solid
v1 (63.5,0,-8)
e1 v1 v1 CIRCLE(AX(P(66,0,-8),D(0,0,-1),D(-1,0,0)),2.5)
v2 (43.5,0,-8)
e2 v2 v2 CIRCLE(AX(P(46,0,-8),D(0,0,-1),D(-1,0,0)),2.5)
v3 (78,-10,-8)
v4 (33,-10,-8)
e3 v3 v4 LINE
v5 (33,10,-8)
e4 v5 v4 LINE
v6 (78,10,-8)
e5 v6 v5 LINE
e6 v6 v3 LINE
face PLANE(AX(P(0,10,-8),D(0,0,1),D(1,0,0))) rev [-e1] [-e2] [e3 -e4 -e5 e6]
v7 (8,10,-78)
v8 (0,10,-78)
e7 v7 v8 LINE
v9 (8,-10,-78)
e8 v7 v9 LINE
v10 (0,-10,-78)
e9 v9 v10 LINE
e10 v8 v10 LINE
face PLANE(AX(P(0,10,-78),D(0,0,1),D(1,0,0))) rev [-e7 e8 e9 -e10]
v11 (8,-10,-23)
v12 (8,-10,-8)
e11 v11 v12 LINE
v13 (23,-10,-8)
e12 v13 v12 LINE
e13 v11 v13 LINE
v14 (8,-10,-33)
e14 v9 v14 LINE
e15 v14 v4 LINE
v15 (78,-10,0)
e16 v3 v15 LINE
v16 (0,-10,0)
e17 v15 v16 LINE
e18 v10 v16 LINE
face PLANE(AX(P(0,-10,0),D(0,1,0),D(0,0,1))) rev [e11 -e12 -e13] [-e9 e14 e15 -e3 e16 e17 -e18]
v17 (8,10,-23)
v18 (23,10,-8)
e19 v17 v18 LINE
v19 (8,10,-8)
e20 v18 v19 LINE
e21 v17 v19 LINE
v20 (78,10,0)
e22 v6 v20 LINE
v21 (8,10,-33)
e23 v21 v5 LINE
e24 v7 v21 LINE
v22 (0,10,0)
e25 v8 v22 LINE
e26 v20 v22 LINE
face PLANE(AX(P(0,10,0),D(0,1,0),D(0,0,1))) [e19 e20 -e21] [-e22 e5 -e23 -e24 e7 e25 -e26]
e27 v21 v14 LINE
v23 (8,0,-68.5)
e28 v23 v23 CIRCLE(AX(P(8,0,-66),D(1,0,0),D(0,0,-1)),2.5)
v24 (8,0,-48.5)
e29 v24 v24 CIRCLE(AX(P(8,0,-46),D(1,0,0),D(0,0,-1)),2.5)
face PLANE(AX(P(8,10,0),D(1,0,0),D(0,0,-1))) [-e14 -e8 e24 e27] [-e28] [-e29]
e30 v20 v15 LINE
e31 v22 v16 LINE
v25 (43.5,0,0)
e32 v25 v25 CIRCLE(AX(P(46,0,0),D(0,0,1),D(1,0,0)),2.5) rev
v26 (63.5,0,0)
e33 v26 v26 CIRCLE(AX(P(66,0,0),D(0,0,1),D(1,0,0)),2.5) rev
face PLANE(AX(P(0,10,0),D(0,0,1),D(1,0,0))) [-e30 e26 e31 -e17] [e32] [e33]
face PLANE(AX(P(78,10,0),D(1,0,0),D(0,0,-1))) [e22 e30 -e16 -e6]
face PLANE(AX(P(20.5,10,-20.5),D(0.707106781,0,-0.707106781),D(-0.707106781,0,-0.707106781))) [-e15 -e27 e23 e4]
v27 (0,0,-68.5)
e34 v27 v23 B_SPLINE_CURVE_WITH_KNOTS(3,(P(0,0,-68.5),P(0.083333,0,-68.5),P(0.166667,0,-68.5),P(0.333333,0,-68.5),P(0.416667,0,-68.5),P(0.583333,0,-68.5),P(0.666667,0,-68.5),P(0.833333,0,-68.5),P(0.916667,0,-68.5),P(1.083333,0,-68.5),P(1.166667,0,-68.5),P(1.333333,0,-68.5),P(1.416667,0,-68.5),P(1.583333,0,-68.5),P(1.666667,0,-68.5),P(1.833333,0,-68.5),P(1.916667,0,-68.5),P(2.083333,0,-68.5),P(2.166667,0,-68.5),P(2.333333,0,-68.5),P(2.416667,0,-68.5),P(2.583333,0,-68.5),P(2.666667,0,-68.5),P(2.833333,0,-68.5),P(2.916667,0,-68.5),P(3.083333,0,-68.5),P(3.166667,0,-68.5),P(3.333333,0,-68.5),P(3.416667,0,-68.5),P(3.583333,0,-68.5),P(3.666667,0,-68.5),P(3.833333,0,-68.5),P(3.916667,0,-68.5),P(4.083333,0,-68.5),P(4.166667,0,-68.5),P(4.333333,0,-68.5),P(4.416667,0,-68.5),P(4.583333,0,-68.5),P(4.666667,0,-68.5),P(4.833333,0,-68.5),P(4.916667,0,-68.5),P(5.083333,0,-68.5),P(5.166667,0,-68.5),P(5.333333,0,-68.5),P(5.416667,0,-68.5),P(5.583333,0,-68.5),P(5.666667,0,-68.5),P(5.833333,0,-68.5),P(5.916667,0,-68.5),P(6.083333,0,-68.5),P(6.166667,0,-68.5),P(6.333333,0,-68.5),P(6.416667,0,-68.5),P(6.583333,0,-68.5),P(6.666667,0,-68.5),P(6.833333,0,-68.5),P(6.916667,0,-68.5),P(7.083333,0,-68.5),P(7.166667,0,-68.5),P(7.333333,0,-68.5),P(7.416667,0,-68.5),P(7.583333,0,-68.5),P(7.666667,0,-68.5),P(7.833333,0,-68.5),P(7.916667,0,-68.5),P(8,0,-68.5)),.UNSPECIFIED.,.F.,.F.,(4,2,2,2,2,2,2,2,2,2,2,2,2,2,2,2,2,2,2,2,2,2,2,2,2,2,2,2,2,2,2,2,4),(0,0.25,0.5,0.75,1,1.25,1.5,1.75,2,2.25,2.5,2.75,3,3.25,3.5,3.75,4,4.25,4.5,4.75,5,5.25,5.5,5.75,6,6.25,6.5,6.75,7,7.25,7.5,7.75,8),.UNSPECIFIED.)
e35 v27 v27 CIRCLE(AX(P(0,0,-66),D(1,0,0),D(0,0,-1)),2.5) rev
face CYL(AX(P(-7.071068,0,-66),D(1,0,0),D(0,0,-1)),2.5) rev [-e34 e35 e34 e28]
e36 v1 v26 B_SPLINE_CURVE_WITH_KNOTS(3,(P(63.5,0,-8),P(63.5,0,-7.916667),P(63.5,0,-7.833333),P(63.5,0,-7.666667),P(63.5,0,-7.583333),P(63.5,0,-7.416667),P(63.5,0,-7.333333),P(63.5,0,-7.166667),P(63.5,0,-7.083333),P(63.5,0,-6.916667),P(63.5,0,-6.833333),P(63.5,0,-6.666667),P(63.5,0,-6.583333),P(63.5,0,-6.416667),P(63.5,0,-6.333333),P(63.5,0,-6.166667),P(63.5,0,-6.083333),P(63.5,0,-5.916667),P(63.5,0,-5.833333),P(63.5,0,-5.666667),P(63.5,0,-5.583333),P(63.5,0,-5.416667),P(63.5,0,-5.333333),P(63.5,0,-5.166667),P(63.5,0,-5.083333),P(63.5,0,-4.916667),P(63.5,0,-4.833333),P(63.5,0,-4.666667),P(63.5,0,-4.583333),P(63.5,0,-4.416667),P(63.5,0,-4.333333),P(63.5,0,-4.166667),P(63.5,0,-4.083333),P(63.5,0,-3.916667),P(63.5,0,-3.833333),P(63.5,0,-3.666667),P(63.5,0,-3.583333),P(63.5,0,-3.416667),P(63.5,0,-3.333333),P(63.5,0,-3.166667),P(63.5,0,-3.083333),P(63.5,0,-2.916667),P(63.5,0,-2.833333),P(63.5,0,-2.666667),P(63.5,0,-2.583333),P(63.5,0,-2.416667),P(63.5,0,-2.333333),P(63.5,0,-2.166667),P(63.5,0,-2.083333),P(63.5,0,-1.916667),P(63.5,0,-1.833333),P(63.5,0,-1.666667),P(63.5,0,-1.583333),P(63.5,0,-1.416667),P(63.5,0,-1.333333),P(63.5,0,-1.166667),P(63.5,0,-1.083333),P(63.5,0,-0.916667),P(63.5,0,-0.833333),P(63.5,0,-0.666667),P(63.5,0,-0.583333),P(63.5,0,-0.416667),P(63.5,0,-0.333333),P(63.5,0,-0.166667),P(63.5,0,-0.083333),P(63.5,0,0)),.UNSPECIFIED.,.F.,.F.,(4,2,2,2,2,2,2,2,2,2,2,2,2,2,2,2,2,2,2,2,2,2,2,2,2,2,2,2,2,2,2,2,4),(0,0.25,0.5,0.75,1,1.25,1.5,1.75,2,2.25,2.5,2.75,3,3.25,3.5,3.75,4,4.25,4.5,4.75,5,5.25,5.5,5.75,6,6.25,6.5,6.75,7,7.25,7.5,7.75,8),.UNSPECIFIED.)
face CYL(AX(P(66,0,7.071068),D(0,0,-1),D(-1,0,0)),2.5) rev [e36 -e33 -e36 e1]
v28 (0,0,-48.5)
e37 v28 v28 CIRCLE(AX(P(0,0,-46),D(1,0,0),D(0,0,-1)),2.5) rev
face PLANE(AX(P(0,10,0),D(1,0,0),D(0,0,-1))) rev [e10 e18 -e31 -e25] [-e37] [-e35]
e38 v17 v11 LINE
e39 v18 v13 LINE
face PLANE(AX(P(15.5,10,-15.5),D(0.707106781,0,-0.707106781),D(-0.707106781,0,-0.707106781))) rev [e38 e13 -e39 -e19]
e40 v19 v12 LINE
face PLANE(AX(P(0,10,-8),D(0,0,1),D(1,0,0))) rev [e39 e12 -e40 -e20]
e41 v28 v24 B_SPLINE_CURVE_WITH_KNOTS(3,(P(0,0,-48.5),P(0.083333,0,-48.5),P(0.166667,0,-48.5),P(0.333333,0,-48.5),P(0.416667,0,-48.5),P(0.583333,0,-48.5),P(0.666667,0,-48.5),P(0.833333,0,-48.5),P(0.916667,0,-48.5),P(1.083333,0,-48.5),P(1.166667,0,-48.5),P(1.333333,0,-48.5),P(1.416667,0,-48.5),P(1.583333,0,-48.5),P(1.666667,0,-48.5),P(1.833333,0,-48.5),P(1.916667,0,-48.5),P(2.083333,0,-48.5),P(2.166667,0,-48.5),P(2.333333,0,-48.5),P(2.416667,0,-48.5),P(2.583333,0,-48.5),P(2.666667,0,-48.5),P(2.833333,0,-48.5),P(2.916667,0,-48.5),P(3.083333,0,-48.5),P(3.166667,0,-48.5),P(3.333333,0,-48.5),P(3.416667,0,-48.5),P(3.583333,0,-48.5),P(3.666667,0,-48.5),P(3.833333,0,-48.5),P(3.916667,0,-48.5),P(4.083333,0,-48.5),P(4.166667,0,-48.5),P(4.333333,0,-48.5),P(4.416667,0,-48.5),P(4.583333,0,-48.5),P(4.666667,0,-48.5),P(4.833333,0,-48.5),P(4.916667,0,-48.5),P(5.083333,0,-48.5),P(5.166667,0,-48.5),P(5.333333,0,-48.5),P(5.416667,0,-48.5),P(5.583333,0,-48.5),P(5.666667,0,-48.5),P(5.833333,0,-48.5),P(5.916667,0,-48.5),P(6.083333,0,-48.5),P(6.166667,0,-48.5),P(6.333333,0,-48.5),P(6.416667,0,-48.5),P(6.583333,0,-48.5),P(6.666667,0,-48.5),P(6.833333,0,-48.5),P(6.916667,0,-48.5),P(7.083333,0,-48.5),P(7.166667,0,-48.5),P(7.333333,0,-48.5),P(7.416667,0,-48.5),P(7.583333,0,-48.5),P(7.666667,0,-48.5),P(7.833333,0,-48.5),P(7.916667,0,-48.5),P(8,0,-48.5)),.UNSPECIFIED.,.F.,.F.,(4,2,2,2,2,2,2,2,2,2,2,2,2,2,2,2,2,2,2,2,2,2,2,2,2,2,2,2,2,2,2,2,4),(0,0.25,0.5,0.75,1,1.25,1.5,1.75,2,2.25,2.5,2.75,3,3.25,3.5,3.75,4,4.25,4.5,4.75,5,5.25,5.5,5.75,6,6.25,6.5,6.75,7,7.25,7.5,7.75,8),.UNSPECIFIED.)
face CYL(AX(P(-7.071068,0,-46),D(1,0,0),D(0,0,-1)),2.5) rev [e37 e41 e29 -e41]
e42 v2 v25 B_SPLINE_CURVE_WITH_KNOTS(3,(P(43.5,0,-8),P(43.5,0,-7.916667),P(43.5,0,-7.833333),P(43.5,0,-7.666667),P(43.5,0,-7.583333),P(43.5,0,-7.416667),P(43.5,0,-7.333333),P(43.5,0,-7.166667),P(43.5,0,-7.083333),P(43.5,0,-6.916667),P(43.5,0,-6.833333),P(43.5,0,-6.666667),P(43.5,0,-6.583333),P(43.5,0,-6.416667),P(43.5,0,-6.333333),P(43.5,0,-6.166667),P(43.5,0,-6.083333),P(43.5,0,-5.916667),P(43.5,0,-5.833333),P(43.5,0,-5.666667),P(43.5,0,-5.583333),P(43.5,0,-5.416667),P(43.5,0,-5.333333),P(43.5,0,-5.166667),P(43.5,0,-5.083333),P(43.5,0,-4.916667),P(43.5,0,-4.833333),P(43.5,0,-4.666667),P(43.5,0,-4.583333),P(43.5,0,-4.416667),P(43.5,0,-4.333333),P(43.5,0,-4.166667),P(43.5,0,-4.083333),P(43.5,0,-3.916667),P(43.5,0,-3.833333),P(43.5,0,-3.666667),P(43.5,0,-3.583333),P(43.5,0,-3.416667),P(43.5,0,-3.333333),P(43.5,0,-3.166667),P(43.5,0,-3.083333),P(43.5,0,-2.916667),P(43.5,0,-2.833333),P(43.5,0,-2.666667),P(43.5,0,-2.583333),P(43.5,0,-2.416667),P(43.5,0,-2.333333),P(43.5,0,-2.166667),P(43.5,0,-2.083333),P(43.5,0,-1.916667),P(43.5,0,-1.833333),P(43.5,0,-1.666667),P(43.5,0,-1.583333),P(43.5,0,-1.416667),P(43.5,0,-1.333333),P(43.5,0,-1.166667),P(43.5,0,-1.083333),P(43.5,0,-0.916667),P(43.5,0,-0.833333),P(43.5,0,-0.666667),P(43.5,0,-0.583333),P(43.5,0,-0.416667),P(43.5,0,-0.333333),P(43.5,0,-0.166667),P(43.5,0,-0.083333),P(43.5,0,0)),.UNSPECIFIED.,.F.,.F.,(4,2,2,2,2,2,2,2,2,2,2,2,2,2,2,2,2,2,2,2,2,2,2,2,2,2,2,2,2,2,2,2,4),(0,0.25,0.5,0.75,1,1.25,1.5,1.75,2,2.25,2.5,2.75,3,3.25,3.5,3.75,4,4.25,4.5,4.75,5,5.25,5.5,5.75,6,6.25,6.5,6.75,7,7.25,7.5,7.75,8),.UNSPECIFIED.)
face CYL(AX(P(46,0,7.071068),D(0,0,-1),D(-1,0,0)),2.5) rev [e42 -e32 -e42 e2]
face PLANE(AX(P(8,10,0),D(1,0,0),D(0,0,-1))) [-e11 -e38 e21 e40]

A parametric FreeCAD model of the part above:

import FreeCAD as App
import Part
import Sketcher
Q = App.Units.Quantity

doc = App.newDocument("Part")
body = doc.addObject("PartDesign::Body", "Body")

# Sketch on XZ plane
sketch1 = doc.addObject("Sketcher::SketchObject", "Sketch")
body.addObject(sketch1)
sketch1.AttachmentSupport = (doc.XZ_Plane, [""])
sketch1.MapMode = "FlatFace"
sketch1.addGeometry(Part.LineSegment(App.Vector(8, -8, 0), App.Vector(8, -78, 0)), False)
sketch1.addGeometry(Part.LineSegment(App.Vector(8, -78, 0), App.Vector(0, -78, 0)), False)
sketch1.addGeometry(Part.LineSegment(App.Vector(0, -78, 0), App.Vector(0, 0, 0)), False)
sketch1.addGeometry(Part.LineSegment(App.Vector(0, 0, 0), App.Vector(78, 0, 0)), False)
sketch1.addGeometry(Part.LineSegment(App.Vector(78, 0, 0), App.Vector(78, -8, 0)), False)
sketch1.addGeometry(Part.LineSegment(App.Vector(78, -8, 0), App.Vector(8, -8, 0)), False)
sketch1.addConstraint(Sketcher.Constraint("Coincident", 0, 2, 1, 1))
sketch1.addConstraint(Sketcher.Constraint("Coincident", 1, 2, 2, 1))
sketch1.addConstraint(Sketcher.Constraint("Coincident", 2, 2, 3, 1))
sketch1.addConstraint(Sketcher.Constraint("Coincident", 3, 2, 4, 1))
sketch1.addConstraint(Sketcher.Constraint("Coincident", 4, 2, 5, 1))
sketch1.addConstraint(Sketcher.Constraint("Coincident", 5, 2, 0, 1))
sketch1.addConstraint(Sketcher.Constraint("Vertical", 0))
sketch1.addConstraint(Sketcher.Constraint("Horizontal", 1))
sketch1.addConstraint(Sketcher.Constraint("Vertical", 2))
sketch1.addConstraint(Sketcher.Constraint("Horizontal", 3))
sketch1.addConstraint(Sketcher.Constraint("Vertical", 4))
sketch1.addConstraint(Sketcher.Constraint("Horizontal", 5))
sketch1.addConstraint(Sketcher.Constraint("Coincident", 2, 2, -1, 1))
sketch1.addConstraint(Sketcher.Constraint("Equal", 5, 0))
sketch1.addConstraint(Sketcher.Constraint("Equal", 3, 2))
sketch1.addConstraint(Sketcher.Constraint("DistanceX", 1, 2, 1, 1, Q("8 mm")))
sketch1.addConstraint(Sketcher.Constraint("DistanceX", 3, 1, 3, 2, Q("78 mm")))
pad1 = doc.addObject("PartDesign::Pad", "Pad")
body.addObject(pad1)
pad1.Profile = sketch1
pad1.Length = 20
pad1.Midplane = True

# Sketch on XZ plane
sketch2 = doc.addObject("Sketcher::SketchObject", "Sketch001")
body.addObject(sketch2)
sketch2.AttachmentSupport = (doc.XZ_Plane, [""])
sketch2.MapMode = "FlatFace"
sketch2.addGeometry(Part.LineSegment(App.Vector(8, -33, 0), App.Vector(8, -23, 0)), False)
sketch2.addGeometry(Part.LineSegment(App.Vector(8, -23, 0), App.Vector(23, -8, 0)), False)
sketch2.addGeometry(Part.LineSegment(App.Vector(23, -8, 0), App.Vector(33, -8, 0)), False)
sketch2.addGeometry(Part.LineSegment(App.Vector(33, -8, 0), App.Vector(8, -33, 0)), False)
sketch2.addConstraint(Sketcher.Constraint("Coincident", 0, 2, 1, 1))
sketch2.addConstraint(Sketcher.Constraint("Coincident", 1, 2, 2, 1))
sketch2.addConstraint(Sketcher.Constraint("Coincident", 2, 2, 3, 1))
sketch2.addConstraint(Sketcher.Constraint("Coincident", 3, 2, 0, 1))
sketch2.addConstraint(Sketcher.Constraint("Vertical", 0))
sketch2.addConstraint(Sketcher.Constraint("Horizontal", 2))
sketch2.addConstraint(Sketcher.Constraint("Parallel", 1, 3))
sketch2.addConstraint(Sketcher.Constraint("Equal", 2, 0))
sketch2.addConstraint(Sketcher.Constraint("DistanceX", 2, 1, 2, 2, Q("10 mm")))
sketch2.addConstraint(Sketcher.Constraint("DistanceX", -1, 1, 0, 2, Q("8 mm")))
sketch2.addConstraint(Sketcher.Constraint("DistanceY", 0, 2, -1, 1, Q("23 mm")))
sketch2.addConstraint(Sketcher.Constraint("DistanceX", -1, 1, 1, 2, Q("23 mm")))
pad2 = doc.addObject("PartDesign::Pad", "Pad001")
body.addObject(pad2)
pad2.Profile = sketch2
pad2.Length = 20
pad2.Midplane = True

# Sketch on YZ plane
sketch3 = doc.addObject("Sketcher::SketchObject", "Sketch002")
body.addObject(sketch3)
sketch3.AttachmentSupport = (doc.YZ_Plane, [""])
sketch3.MapMode = "FlatFace"
sketch3.AttachmentOffset = App.Placement(App.Vector(0, 0, 8), App.Rotation())
sketch3.addGeometry(Part.Circle(App.Vector(0, -46, 0), App.Vector(0, 0, 1), 2.5), False)
sketch3.addGeometry(Part.Circle(App.Vector(0, -66, 0), App.Vector(0, 0, 1), 2.5), False)
sketch3.addConstraint(Sketcher.Constraint("Equal", 0, 1))
sketch3.addConstraint(Sketcher.Constraint("PointOnObject", 0, 3, -2))
sketch3.addConstraint(Sketcher.Constraint("PointOnObject", 1, 3, -2))
sketch3.addConstraint(Sketcher.Constraint("Diameter", 0, Q("5 mm")))
sketch3.addConstraint(Sketcher.Constraint("DistanceY", 0, 3, -1, 1, Q("46 mm")))
sketch3.addConstraint(Sketcher.Constraint("DistanceY", 1, 3, -1, 1, Q("66 mm")))
pocket1 = doc.addObject("PartDesign::Pocket", "Pocket")
body.addObject(pocket1)
pocket1.Profile = sketch3
pocket1.Length = 8

# Sketch on XY plane
sketch4 = doc.addObject("Sketcher::SketchObject", "Sketch003")
body.addObject(sketch4)
sketch4.AttachmentSupport = (doc.XY_Plane, [""])
sketch4.MapMode = "FlatFace"
sketch4.AttachmentOffset = App.Placement(App.Vector(0, 0, -8), App.Rotation())
sketch4.addGeometry(Part.Circle(App.Vector(66, 0, 0), App.Vector(0, 0, 1), 2.5), False)
sketch4.addGeometry(Part.Circle(App.Vector(46, 0, 0), App.Vector(0, 0, 1), 2.5), False)
sketch4.addConstraint(Sketcher.Constraint("Equal", 0, 1))
sketch4.addConstraint(Sketcher.Constraint("PointOnObject", 0, 3, -1))
sketch4.addConstraint(Sketcher.Constraint("PointOnObject", 1, 3, -1))
sketch4.addConstraint(Sketcher.Constraint("Diameter", 0, Q("5 mm")))
sketch4.addConstraint(Sketcher.Constraint("DistanceX", -1, 1, 0, 3, Q("66 mm")))
sketch4.addConstraint(Sketcher.Constraint("DistanceX", -1, 1, 1, 3, Q("46 mm")))
pocket2 = doc.addObject("PartDesign::Pocket", "Pocket001")
body.addObject(pocket2)
pocket2.Profile = sketch4
pocket2.Length = 8
pocket2.Reversed = True

doc.recompute()
